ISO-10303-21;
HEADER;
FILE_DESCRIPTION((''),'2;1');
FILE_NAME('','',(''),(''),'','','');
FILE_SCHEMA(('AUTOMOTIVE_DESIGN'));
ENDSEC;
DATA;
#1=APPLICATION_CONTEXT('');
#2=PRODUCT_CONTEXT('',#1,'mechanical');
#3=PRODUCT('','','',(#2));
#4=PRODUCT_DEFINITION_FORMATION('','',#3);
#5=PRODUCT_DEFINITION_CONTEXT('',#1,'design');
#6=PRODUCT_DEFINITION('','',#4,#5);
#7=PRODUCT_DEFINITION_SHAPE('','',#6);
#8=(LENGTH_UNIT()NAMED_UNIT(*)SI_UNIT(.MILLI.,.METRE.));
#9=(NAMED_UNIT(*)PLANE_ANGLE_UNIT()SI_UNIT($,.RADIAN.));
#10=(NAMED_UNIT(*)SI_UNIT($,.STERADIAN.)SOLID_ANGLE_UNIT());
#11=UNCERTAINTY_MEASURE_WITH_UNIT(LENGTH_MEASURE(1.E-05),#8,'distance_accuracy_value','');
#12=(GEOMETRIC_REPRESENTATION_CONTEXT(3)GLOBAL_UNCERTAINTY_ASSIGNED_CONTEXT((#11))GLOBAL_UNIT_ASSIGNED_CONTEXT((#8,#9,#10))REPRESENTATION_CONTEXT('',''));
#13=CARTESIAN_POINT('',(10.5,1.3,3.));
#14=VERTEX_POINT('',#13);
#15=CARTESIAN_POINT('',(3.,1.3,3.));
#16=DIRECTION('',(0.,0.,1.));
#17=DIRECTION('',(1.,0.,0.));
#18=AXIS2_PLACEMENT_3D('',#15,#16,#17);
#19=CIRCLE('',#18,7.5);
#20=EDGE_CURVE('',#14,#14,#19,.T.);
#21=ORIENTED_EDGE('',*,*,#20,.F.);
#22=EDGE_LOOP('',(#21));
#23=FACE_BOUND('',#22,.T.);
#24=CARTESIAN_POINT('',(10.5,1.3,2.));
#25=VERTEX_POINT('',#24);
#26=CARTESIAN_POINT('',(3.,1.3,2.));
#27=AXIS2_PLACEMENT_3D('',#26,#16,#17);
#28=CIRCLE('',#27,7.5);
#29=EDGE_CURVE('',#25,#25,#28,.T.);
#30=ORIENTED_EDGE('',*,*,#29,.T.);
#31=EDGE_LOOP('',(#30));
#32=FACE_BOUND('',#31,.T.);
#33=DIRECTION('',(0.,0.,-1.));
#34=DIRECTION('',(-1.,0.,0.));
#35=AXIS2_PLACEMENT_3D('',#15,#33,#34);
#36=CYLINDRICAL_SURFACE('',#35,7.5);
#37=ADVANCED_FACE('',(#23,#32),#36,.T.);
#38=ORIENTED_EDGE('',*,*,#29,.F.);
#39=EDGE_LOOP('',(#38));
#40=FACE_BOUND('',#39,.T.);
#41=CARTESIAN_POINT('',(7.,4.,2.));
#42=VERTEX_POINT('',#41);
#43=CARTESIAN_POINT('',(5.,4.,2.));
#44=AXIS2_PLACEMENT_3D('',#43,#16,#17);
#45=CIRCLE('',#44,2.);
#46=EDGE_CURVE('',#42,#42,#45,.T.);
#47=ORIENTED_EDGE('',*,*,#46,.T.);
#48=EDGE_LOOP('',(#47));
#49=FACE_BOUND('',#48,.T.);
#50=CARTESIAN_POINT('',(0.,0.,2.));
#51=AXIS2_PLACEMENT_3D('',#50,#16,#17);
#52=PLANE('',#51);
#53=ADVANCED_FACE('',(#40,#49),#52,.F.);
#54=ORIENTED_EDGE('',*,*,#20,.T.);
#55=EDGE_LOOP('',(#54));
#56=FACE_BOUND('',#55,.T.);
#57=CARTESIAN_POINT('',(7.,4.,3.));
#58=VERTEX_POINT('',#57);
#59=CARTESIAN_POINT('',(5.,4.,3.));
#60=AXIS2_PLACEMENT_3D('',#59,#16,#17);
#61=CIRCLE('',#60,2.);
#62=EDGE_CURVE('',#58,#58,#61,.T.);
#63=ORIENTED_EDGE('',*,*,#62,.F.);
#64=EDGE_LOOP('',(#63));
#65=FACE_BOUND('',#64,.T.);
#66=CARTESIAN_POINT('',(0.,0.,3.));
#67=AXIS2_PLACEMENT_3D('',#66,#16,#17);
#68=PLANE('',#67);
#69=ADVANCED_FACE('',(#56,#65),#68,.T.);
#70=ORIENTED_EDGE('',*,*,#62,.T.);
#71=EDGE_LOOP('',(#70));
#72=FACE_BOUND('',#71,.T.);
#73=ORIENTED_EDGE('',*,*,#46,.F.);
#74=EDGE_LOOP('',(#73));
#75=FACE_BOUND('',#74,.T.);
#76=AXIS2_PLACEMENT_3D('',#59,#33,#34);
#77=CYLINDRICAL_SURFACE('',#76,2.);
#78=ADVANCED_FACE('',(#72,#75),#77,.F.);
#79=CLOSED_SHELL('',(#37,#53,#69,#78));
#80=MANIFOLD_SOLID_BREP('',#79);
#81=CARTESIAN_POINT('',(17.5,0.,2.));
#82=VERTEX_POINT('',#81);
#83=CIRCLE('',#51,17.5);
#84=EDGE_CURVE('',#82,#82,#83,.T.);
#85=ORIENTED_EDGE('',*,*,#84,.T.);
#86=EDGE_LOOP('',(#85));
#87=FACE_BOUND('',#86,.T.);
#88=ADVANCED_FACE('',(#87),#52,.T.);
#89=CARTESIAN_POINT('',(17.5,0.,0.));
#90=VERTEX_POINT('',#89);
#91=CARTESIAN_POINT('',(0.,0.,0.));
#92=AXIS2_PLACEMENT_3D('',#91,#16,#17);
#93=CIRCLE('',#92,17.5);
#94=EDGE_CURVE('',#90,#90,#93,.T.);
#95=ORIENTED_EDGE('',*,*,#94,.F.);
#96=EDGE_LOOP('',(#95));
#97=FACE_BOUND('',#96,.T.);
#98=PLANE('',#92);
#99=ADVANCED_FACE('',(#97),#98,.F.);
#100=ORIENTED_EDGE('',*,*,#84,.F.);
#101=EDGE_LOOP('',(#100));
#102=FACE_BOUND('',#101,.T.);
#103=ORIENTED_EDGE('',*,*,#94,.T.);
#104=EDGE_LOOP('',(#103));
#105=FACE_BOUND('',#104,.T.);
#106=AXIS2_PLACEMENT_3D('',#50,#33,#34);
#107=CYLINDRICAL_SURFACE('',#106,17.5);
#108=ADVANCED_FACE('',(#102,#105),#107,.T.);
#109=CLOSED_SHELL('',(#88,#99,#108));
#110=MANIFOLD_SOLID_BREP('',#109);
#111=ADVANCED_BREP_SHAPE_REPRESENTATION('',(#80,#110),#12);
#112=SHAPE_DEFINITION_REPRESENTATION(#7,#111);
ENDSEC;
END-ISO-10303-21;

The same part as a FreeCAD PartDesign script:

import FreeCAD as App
import Part
import Sketcher
Q = App.Units.Quantity

doc = App.newDocument("Part")
body = doc.addObject("PartDesign::Body", "Body")

# Sketch on XY plane
sketch1 = body.newObject("Sketcher::SketchObject", "Sketch")
sketch1.AttachmentSupport = (doc.getObject("XY_Plane"), [""])
sketch1.MapMode = "FlatFace"
sketch1.addGeometry(Part.Circle(App.Vector(0, 0, 0), App.Vector(0, 0, 1), 18), False)
sketch1.addConstraint([
    Sketcher.Constraint("Coincident", 0, 3, -1, 1),
    Sketcher.Constraint("Diameter", 0, Q("35 mm")),
])
pad1 = body.newObject("PartDesign::Pad", "Pad")
pad1.Profile = sketch1
pad1.Length = 2
body2 = doc.addObject("PartDesign::Body", "Body001")

# Sketch on XY plane
sketch2 = body2.newObject("Sketcher::SketchObject", "Sketch001")
sketch2.AttachmentSupport = (doc.getObject("XY_Plane001"), [""])
sketch2.MapMode = "FlatFace"
sketch2.AttachmentOffset = App.Placement(App.Vector(0, 0, 2), App.Rotation())
sketch2.addGeometry([
    Part.Circle(App.Vector(3, 1.3, 0), App.Vector(0, 0, 1), 7.5),
    Part.Circle(App.Vector(5, 4, 0), App.Vector(0, 0, 1), 2),
], False)
sketch2.addConstraint([
    Sketcher.Constraint("Diameter", 0, Q("15 mm")),
    Sketcher.Constraint("Diameter", 1, Q("4 mm")),
    Sketcher.Constraint("DistanceX", -1, 1, 0, 3, Q("3 mm")),
    Sketcher.Constraint("DistanceX", -1, 1, 1, 3, Q("5 mm")),
    Sketcher.Constraint("DistanceY", -1, 1, 1, 3, Q("4 mm")),
    Sketcher.Constraint("DistanceY", -1, 1, 0, 3, Q("1.3 mm")),
])
pad2 = body2.newObject("PartDesign::Pad", "Pad001")
pad2.Profile = sketch2
pad2.Length = 1

doc.recompute()
